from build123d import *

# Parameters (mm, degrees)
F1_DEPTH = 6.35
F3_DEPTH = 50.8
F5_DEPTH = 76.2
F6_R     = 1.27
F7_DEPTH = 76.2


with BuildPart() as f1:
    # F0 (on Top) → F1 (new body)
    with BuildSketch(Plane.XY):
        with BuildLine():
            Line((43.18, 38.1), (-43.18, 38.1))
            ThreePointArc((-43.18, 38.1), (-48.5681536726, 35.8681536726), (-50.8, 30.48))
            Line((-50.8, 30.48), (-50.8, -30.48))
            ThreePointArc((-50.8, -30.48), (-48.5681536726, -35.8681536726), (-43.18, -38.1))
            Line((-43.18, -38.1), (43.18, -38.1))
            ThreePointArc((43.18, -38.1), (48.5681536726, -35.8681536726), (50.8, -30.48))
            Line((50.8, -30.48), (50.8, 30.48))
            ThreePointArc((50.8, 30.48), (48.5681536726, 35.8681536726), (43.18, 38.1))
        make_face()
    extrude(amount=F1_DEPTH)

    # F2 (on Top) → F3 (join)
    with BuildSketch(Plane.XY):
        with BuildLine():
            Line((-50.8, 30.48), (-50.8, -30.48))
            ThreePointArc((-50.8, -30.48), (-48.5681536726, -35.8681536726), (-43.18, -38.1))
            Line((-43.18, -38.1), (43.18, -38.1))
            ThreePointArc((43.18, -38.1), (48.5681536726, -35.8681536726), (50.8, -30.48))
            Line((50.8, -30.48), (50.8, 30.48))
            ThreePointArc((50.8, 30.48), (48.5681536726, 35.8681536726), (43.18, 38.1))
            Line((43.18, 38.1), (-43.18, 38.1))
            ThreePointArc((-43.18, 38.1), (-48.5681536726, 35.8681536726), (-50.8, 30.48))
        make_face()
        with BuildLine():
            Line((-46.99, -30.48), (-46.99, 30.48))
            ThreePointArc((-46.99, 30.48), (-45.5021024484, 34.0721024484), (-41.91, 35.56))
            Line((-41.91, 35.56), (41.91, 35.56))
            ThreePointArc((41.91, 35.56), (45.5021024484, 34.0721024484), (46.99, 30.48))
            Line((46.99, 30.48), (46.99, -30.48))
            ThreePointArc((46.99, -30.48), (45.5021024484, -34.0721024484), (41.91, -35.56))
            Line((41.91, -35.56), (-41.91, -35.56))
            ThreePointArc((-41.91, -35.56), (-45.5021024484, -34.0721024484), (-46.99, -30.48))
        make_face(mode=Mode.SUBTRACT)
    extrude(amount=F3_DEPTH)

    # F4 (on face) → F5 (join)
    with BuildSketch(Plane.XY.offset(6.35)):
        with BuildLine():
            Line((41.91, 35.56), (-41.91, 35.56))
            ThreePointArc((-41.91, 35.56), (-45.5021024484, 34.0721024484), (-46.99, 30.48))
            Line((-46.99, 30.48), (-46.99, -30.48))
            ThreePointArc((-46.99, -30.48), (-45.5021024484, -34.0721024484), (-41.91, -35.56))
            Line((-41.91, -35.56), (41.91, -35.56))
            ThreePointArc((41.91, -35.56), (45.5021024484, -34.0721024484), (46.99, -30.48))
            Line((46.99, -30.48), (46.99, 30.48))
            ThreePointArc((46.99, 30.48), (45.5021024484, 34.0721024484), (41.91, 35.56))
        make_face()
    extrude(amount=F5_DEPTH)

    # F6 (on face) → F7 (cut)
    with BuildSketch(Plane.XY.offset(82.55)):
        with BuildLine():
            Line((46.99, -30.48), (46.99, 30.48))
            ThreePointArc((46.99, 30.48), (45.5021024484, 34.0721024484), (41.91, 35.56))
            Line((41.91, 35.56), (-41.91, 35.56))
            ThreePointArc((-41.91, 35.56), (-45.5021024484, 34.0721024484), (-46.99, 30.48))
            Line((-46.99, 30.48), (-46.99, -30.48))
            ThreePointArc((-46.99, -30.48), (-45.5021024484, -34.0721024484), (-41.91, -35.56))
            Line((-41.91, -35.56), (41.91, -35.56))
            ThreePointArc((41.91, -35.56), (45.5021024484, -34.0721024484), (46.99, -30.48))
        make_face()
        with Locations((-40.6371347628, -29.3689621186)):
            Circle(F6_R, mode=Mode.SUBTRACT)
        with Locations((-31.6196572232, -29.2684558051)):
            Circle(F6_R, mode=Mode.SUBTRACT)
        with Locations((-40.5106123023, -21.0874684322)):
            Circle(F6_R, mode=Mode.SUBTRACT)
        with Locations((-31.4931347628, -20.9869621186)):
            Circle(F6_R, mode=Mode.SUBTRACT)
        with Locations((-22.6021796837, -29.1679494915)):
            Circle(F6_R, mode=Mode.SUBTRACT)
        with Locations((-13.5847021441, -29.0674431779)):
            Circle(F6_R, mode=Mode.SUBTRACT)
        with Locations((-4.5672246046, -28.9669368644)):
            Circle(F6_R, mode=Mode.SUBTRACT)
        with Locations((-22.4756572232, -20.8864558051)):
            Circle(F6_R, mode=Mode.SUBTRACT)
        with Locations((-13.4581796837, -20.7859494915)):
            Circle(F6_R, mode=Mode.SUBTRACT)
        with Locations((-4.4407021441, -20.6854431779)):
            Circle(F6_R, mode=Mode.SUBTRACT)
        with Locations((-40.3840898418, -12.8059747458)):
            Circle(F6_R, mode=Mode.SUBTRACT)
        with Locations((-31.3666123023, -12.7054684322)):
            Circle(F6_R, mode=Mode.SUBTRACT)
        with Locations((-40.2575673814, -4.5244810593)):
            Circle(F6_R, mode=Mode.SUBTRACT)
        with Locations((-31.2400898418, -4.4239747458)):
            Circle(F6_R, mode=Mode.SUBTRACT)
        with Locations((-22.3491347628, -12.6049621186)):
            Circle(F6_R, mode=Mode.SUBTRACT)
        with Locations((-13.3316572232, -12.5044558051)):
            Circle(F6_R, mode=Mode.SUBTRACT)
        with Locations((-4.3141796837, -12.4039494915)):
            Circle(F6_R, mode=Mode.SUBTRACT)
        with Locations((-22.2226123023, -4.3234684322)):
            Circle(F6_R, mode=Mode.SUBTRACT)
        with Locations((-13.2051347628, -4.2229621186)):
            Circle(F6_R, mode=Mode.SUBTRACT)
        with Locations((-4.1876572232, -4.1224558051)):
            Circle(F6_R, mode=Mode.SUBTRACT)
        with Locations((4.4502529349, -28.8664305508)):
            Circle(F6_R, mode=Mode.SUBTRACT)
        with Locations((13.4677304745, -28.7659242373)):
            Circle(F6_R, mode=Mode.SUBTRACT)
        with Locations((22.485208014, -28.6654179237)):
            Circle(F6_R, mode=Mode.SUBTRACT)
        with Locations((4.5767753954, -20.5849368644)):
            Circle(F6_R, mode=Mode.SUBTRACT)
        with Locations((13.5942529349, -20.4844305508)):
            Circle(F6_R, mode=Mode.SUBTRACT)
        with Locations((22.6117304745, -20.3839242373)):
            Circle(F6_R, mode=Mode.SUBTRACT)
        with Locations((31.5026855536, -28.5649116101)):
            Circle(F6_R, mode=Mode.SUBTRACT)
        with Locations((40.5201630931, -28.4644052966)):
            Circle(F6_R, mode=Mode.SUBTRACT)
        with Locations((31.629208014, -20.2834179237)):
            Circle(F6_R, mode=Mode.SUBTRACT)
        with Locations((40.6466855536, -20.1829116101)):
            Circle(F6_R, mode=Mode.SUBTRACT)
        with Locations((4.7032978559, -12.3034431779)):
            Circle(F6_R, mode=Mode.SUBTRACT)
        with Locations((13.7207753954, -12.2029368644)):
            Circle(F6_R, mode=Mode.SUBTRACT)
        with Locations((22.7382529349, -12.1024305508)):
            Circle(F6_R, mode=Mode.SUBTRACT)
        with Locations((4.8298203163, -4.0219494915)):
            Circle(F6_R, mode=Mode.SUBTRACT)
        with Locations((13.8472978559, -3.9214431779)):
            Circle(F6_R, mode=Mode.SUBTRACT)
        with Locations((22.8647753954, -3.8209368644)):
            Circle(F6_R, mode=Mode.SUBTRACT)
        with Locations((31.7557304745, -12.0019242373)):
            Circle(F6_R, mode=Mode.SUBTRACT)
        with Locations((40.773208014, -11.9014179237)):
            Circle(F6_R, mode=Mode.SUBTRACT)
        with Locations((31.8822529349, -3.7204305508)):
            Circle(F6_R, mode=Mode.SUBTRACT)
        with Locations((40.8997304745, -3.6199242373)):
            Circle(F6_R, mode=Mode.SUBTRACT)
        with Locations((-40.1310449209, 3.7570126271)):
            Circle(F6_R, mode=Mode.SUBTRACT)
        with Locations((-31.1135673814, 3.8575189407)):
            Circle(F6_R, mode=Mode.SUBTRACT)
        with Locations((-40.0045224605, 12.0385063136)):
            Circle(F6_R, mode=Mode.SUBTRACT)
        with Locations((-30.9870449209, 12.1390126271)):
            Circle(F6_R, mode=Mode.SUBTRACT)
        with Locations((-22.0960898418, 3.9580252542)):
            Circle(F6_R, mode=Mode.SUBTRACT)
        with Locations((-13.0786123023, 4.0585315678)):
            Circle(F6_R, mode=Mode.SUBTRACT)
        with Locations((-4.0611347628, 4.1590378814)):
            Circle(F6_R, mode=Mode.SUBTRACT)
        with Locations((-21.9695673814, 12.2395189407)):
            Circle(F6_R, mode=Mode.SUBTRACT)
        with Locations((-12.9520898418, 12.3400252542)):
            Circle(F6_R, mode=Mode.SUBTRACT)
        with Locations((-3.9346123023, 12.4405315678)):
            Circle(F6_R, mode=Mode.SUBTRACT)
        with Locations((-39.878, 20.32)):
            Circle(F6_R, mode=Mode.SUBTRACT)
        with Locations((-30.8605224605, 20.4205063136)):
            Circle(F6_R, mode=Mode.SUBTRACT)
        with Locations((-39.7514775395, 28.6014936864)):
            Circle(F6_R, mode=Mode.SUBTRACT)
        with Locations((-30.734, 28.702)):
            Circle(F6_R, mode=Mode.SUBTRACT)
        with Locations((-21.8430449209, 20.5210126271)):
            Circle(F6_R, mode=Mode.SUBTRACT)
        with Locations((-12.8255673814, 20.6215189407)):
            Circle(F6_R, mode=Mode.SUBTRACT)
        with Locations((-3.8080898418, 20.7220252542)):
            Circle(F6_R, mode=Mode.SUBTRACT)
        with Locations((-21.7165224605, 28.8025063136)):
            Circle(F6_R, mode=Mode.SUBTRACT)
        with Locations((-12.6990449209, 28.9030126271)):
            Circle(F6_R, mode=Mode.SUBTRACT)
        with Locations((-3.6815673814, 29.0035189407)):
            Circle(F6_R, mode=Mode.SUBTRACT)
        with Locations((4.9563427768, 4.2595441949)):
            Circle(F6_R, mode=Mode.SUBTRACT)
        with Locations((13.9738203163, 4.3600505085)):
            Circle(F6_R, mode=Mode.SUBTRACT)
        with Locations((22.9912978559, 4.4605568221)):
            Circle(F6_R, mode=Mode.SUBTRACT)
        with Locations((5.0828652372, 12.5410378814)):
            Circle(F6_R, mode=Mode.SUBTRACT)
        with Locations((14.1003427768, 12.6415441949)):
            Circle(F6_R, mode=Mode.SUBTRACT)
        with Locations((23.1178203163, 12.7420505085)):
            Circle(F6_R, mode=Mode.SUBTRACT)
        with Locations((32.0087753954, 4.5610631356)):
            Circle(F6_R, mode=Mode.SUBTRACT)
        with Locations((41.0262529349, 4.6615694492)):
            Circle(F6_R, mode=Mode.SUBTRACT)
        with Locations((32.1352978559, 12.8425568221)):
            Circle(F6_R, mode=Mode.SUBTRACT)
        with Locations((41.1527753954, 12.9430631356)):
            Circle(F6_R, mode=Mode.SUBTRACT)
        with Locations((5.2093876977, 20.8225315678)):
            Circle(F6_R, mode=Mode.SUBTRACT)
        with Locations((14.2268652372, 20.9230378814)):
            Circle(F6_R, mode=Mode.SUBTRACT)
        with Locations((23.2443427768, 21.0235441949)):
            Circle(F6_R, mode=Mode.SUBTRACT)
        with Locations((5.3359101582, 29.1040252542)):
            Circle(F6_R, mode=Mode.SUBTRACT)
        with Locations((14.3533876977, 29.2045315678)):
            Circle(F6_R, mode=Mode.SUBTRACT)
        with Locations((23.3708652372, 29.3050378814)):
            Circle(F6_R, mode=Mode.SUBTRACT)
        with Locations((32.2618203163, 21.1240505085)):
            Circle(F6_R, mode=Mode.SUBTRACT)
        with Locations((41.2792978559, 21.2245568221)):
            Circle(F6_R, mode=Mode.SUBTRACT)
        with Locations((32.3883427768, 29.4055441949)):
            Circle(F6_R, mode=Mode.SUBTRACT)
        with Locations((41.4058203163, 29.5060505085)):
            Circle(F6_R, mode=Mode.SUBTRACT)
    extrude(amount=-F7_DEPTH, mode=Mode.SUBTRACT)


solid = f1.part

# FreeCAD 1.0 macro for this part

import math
import FreeCAD as App
import Part
import Sketcher
from FreeCAD import Vector
Q = App.Units.Quantity

doc = App.newDocument("Part")
params = doc.addObject("Spreadsheet::Sheet", "Params")
for row, (alias, value) in enumerate([
    ("sketch1_radius", "0.3 in"),
    ("sketch1_width", "3.4 in"),
    ("sketch1_height", "2.4 in"),
    ("pad1_length", "0.25 in"),
    ("sketch2_radius", "0.3 in"),
    ("sketch2_radius2", "0.2 in"),
    ("sketch2_width", "3.4 in"),
    ("sketch2_width2", "3.3 in"),
    ("sketch2_height", "2.4 in"),
    ("pad2_length", "2 in"),
    ("sketch3_radius", "0.2 in"),
    ("sketch3_width", "3.3 in"),
    ("sketch3_height", "2.4 in"),
    ("pad3_length", "3 in"),
    ("sketch4_diameter", "0.1 in"),
    ("sketch4_radius", "0.2 in"),
    ("sketch4_width", "3.3 in"),
    ("sketch4_height", "2.4 in"),
    ("pocket1_length", "3 in"),
], start=1):
    params.set(f"A{row}", alias)
    params.set(f"B{row}", "=" + value)
    params.setAlias(f"B{row}", alias)

body = doc.addObject("PartDesign::Body", "Body")

sketch1 = body.newObject("Sketcher::SketchObject", "Sketch")
sketch1.AttachmentSupport = (doc.getObject("XY_Plane"), [""])
sketch1.MapMode = "FlatFace"
sketch1.addGeometry([
    Part.LineSegment(Vector(43, 38, 0), Vector(-43, 38, 0)),
    Part.ArcOfCircle(Part.Circle(Vector(-43, 30, 0), Vector(0, 0, 1), 8), math.radians(90), math.radians(180)),
    Part.LineSegment(Vector(-51, 30, 0), Vector(-51, -30, 0)),
    Part.ArcOfCircle(Part.Circle(Vector(-43, -30, 0), Vector(0, 0, 1), 8), math.radians(180), math.radians(270)),
    Part.LineSegment(Vector(-43, -38, 0), Vector(43, -38, 0)),
    Part.ArcOfCircle(Part.Circle(Vector(43, -30, 0), Vector(0, 0, 1), 8), math.radians(-90), math.radians(0)),
    Part.LineSegment(Vector(51, -30, 0), Vector(51, 30, 0)),
    Part.ArcOfCircle(Part.Circle(Vector(43, 30, 0), Vector(0, 0, 1), 8), math.radians(0), math.radians(90)),
], False)
sketch1.addConstraint([
    Sketcher.Constraint("Tangent", 0, 2, 1, 1),
    Sketcher.Constraint("Tangent", 1, 2, 2, 1),
    Sketcher.Constraint("Tangent", 2, 2, 3, 1),
    Sketcher.Constraint("Tangent", 3, 2, 4, 1),
    Sketcher.Constraint("Tangent", 4, 2, 5, 1),
    Sketcher.Constraint("Tangent", 5, 2, 6, 1),
    Sketcher.Constraint("Tangent", 6, 2, 7, 1),
    Sketcher.Constraint("Tangent", 7, 2, 0, 1),
    Sketcher.Constraint("Horizontal", 0),
    Sketcher.Constraint("Vertical", 2),
    Sketcher.Constraint("Horizontal", 4),
    Sketcher.Constraint("Vertical", 6),
    Sketcher.Constraint("Equal", 1, 3),
    Sketcher.Constraint("Equal", 3, 5),
    Sketcher.Constraint("Equal", 5, 7),
    Sketcher.Constraint("Symmetric", 1, 3, 5, 3, -1, 1),
    Sketcher.Constraint("Radius", 1, Q("0.3 in")),
    Sketcher.Constraint("DistanceX", 0, 2, 0, 1, Q("3.4 in")),
    Sketcher.Constraint("DistanceY", 2, 2, 2, 1, Q("2.4 in")),
])
sketch1.setExpression("Constraints[16]", "Params.sketch1_radius")
sketch1.setExpression("Constraints[17]", "Params.sketch1_width")
sketch1.setExpression("Constraints[18]", "Params.sketch1_height")
pad1 = body.newObject("PartDesign::Pad", "Pad")
pad1.Profile = sketch1
pad1.setExpression("Length", "Params.pad1_length")

sketch2 = body.newObject("Sketcher::SketchObject", "Sketch001")
sketch2.AttachmentSupport = (doc.getObject("XY_Plane"), [""])
sketch2.MapMode = "FlatFace"
sketch2.addGeometry([
    Part.LineSegment(Vector(-51, 30, 0), Vector(-51, -30, 0)),
    Part.ArcOfCircle(Part.Circle(Vector(-43, -30, 0), Vector(0, 0, 1), 8), math.radians(180), math.radians(270)),
    Part.LineSegment(Vector(-43, -38, 0), Vector(43, -38, 0)),
    Part.ArcOfCircle(Part.Circle(Vector(43, -30, 0), Vector(0, 0, 1), 8), math.radians(-90), math.radians(0)),
    Part.LineSegment(Vector(51, -30, 0), Vector(51, 30, 0)),
    Part.ArcOfCircle(Part.Circle(Vector(43, 30, 0), Vector(0, 0, 1), 8), math.radians(0), math.radians(90)),
    Part.LineSegment(Vector(43, 38, 0), Vector(-43, 38, 0)),
    Part.ArcOfCircle(Part.Circle(Vector(-43, 30, 0), Vector(0, 0, 1), 8), math.radians(90), math.radians(180)),
    Part.ArcOfCircle(Part.Circle(Vector(-42, -30, 0), Vector(0, 0, 1), 5), math.radians(180), math.radians(270)),
    Part.LineSegment(Vector(-47, -30, 0), Vector(-47, 30, 0)),
    Part.ArcOfCircle(Part.Circle(Vector(-42, 30, 0), Vector(0, 0, 1), 5), math.radians(90), math.radians(180)),
    Part.LineSegment(Vector(-42, 36, 0), Vector(42, 36, 0)),
    Part.ArcOfCircle(Part.Circle(Vector(42, 30, 0), Vector(0, 0, 1), 5), math.radians(0), math.radians(90)),
    Part.LineSegment(Vector(47, 30, 0), Vector(47, -30, 0)),
    Part.ArcOfCircle(Part.Circle(Vector(42, -30, 0), Vector(0, 0, 1), 5), math.radians(-90), math.radians(0)),
    Part.LineSegment(Vector(42, -36, 0), Vector(-42, -36, 0)),
], False)
sketch2.addConstraint([
    Sketcher.Constraint("Tangent", 0, 2, 1, 1),
    Sketcher.Constraint("Tangent", 1, 2, 2, 1),
    Sketcher.Constraint("Tangent", 2, 2, 3, 1),
    Sketcher.Constraint("Tangent", 3, 2, 4, 1),
    Sketcher.Constraint("Tangent", 4, 2, 5, 1),
    Sketcher.Constraint("Tangent", 5, 2, 6, 1),
    Sketcher.Constraint("Tangent", 6, 2, 7, 1),
    Sketcher.Constraint("Tangent", 7, 2, 0, 1),
    Sketcher.Constraint("Tangent", 8, 1, 9, 1),
    Sketcher.Constraint("Tangent", 9, 2, 10, 2),
    Sketcher.Constraint("Tangent", 10, 1, 11, 1),
    Sketcher.Constraint("Tangent", 11, 2, 12, 2),
    Sketcher.Constraint("Tangent", 12, 1, 13, 1),
    Sketcher.Constraint("Tangent", 13, 2, 14, 2),
    Sketcher.Constraint("Tangent", 14, 1, 15, 1),
    Sketcher.Constraint("Tangent", 15, 2, 8, 2),
    Sketcher.Constraint("Vertical", 0),
    Sketcher.Constraint("Horizontal", 2),
    Sketcher.Constraint("Vertical", 4),
    Sketcher.Constraint("Horizontal", 6),
    Sketcher.Constraint("Vertical", 9),
    Sketcher.Constraint("Horizontal", 11),
    Sketcher.Constraint("Vertical", 13),
    Sketcher.Constraint("Horizontal", 15),
    Sketcher.Constraint("Equal", 1, 3),
    Sketcher.Constraint("Equal", 3, 5),
    Sketcher.Constraint("Equal", 5, 7),
    Sketcher.Constraint("Equal", 8, 10),
    Sketcher.Constraint("Equal", 10, 12),
    Sketcher.Constraint("Equal", 12, 14),
    Sketcher.Constraint("Symmetric", 1, 3, 5, 3, -1, 1),
    Sketcher.Constraint("Symmetric", 8, 3, 12, 3, -1, 1),
    Sketcher.Constraint("Horizontal", 3, 3, 8, 3),
    Sketcher.Constraint("Radius", 1, Q("0.3 in")),
    Sketcher.Constraint("Radius", 8, Q("0.2 in")),
    Sketcher.Constraint("DistanceX", 2, 1, 2, 2, Q("3.4 in")),
    Sketcher.Constraint("DistanceX", 11, 1, 11, 2, Q("3.3 in")),
    Sketcher.Constraint("DistanceY", 0, 2, 0, 1, Q("2.4 in")),
])
sketch2.setExpression("Constraints[33]", "Params.sketch2_radius")
sketch2.setExpression("Constraints[34]", "Params.sketch2_radius2")
sketch2.setExpression("Constraints[35]", "Params.sketch2_width")
sketch2.setExpression("Constraints[36]", "Params.sketch2_width2")
sketch2.setExpression("Constraints[37]", "Params.sketch2_height")
pad2 = body.newObject("PartDesign::Pad", "Pad001")
pad2.Profile = sketch2
pad2.setExpression("Length", "Params.pad2_length")

sketch3 = body.newObject("Sketcher::SketchObject", "Sketch002")
sketch3.AttachmentSupport = (doc.getObject("XY_Plane"), [""])
sketch3.MapMode = "FlatFace"
sketch3.AttachmentOffset = App.Placement(Vector(0, 0, 0.25 * 25.4), App.Rotation())
sketch3.addGeometry([
    Part.LineSegment(Vector(42, 36, 0), Vector(-42, 36, 0)),
    Part.ArcOfCircle(Part.Circle(Vector(-42, 30, 0), Vector(0, 0, 1), 5), math.radians(90), math.radians(180)),
    Part.LineSegment(Vector(-47, 30, 0), Vector(-47, -30, 0)),
    Part.ArcOfCircle(Part.Circle(Vector(-42, -30, 0), Vector(0, 0, 1), 5), math.radians(180), math.radians(270)),
    Part.LineSegment(Vector(-42, -36, 0), Vector(42, -36, 0)),
    Part.ArcOfCircle(Part.Circle(Vector(42, -30, 0), Vector(0, 0, 1), 5), math.radians(-90), math.radians(0)),
    Part.LineSegment(Vector(47, -30, 0), Vector(47, 30, 0)),
    Part.ArcOfCircle(Part.Circle(Vector(42, 30, 0), Vector(0, 0, 1), 5), math.radians(0), math.radians(90)),
], False)
sketch3.addConstraint([
    Sketcher.Constraint("Tangent", 0, 2, 1, 1),
    Sketcher.Constraint("Tangent", 1, 2, 2, 1),
    Sketcher.Constraint("Tangent", 2, 2, 3, 1),
    Sketcher.Constraint("Tangent", 3, 2, 4, 1),
    Sketcher.Constraint("Tangent", 4, 2, 5, 1),
    Sketcher.Constraint("Tangent", 5, 2, 6, 1),
    Sketcher.Constraint("Tangent", 6, 2, 7, 1),
    Sketcher.Constraint("Tangent", 7, 2, 0, 1),
    Sketcher.Constraint("Horizontal", 0),
    Sketcher.Constraint("Vertical", 2),
    Sketcher.Constraint("Horizontal", 4),
    Sketcher.Constraint("Vertical", 6),
    Sketcher.Constraint("Equal", 1, 3),
    Sketcher.Constraint("Equal", 3, 5),
    Sketcher.Constraint("Equal", 5, 7),
    Sketcher.Constraint("Symmetric", 1, 3, 5, 3, -1, 1),
    Sketcher.Constraint("Radius", 1, Q("0.2 in")),
    Sketcher.Constraint("DistanceX", 0, 2, 0, 1, Q("3.3 in")),
    Sketcher.Constraint("DistanceY", 2, 2, 2, 1, Q("2.4 in")),
])
sketch3.setExpression("Constraints[16]", "Params.sketch3_radius")
sketch3.setExpression("Constraints[17]", "Params.sketch3_width")
sketch3.setExpression("Constraints[18]", "Params.sketch3_height")
pad3 = body.newObject("PartDesign::Pad", "Pad002")
pad3.Profile = sketch3
pad3.setExpression("Length", "Params.pad3_length")

sketch4 = body.newObject("Sketcher::SketchObject", "Sketch003")
sketch4.AttachmentSupport = (doc.getObject("XY_Plane"), [""])
sketch4.MapMode = "FlatFace"
sketch4.AttachmentOffset = App.Placement(Vector(0, 0, 3.25 * 25.4), App.Rotation())
sketch4.addGeometry([
    Part.LineSegment(Vector(47, -30.5, 0), Vector(47, 30.5, 0)),
    Part.ArcOfCircle(Part.Circle(Vector(41.9, 30.5, 0), Vector(0, 0, 1), 5.1), math.radians(0), math.radians(90)),
    Part.LineSegment(Vector(41.9, 35.6, 0), Vector(-41.9, 35.6, 0)),
    Part.ArcOfCircle(Part.Circle(Vector(-41.9, 30.5, 0), Vector(0, 0, 1), 5.1), math.radians(90), math.radians(180)),
    Part.LineSegment(Vector(-47, 30.5, 0), Vector(-47, -30.5, 0)),
    Part.ArcOfCircle(Part.Circle(Vector(-41.9, -30.5, 0), Vector(0, 0, 1), 5.1), math.radians(180), math.radians(270)),
    Part.LineSegment(Vector(-41.9, -35.6, 0), Vector(41.9, -35.6, 0)),
    Part.ArcOfCircle(Part.Circle(Vector(41.9, -30.5, 0), Vector(0, 0, 1), 5.1), math.radians(-90), math.radians(0)),
    Part.Circle(Vector(-40.6, -29.4, 0), Vector(0, 0, 1), 1.3),
    Part.Circle(Vector(-31.6, -29.3, 0), Vector(0, 0, 1), 1.3),
    Part.Circle(Vector(-22.6, -29.2, 0), Vector(0, 0, 1), 1.3),
    Part.Circle(Vector(-40.5, -21.1, 0), Vector(0, 0, 1), 1.3),
    Part.Circle(Vector(-31.5, -21, 0), Vector(0, 0, 1), 1.3),
    Part.Circle(Vector(-22.5, -20.9, 0), Vector(0, 0, 1), 1.3),
    Part.Circle(Vector(-13.6, -29.1, 0), Vector(0, 0, 1), 1.3),
    Part.Circle(Vector(-4.6, -29, 0), Vector(0, 0, 1), 1.3),
    Part.Circle(Vector(-13.5, -20.8, 0), Vector(0, 0, 1), 1.3),
    Part.Circle(Vector(-4.4, -20.7, 0), Vector(0, 0, 1), 1.3),
    Part.Circle(Vector(-40.4, -12.8, 0), Vector(0, 0, 1), 1.3),
    Part.Circle(Vector(-31.4, -12.7, 0), Vector(0, 0, 1), 1.3),
    Part.Circle(Vector(-22.3, -12.6, 0), Vector(0, 0, 1), 1.3),
    Part.Circle(Vector(-40.3, -4.5, 0), Vector(0, 0, 1), 1.3),
    Part.Circle(Vector(-31.2, -4.4, 0), Vector(0, 0, 1), 1.3),
    Part.Circle(Vector(-22.2, -4.3, 0), Vector(0, 0, 1), 1.3),
    Part.Circle(Vector(-13.3, -12.5, 0), Vector(0, 0, 1), 1.3),
    Part.Circle(Vector(-4.3, -12.4, 0), Vector(0, 0, 1), 1.3),
    Part.Circle(Vector(-13.2, -4.2, 0), Vector(0, 0, 1), 1.3),
    Part.Circle(Vector(-4.2, -4.1, 0), Vector(0, 0, 1), 1.3),
    Part.Circle(Vector(4.5, -28.9, 0), Vector(0, 0, 1), 1.3),
    Part.Circle(Vector(13.5, -28.8, 0), Vector(0, 0, 1), 1.3),
    Part.Circle(Vector(4.6, -20.6, 0), Vector(0, 0, 1), 1.3),
    Part.Circle(Vector(13.6, -20.5, 0), Vector(0, 0, 1), 1.3),
    Part.Circle(Vector(22.5, -28.7, 0), Vector(0, 0, 1), 1.3),
    Part.Circle(Vector(31.5, -28.6, 0), Vector(0, 0, 1), 1.3),
    Part.Circle(Vector(40.5, -28.5, 0), Vector(0, 0, 1), 1.3),
    Part.Circle(Vector(22.6, -20.4, 0), Vector(0, 0, 1), 1.3),
    Part.Circle(Vector(31.6, -20.3, 0), Vector(0, 0, 1), 1.3),
    Part.Circle(Vector(40.6, -20.2, 0), Vector(0, 0, 1), 1.3),
    Part.Circle(Vector(4.7, -12.3, 0), Vector(0, 0, 1), 1.3),
    Part.Circle(Vector(13.7, -12.2, 0), Vector(0, 0, 1), 1.3),
    Part.Circle(Vector(4.8, -4, 0), Vector(0, 0, 1), 1.3),
    Part.Circle(Vector(13.8, -3.9, 0), Vector(0, 0, 1), 1.3),
    Part.Circle(Vector(22.7, -12.1, 0), Vector(0, 0, 1), 1.3),
    Part.Circle(Vector(31.8, -12, 0), Vector(0, 0, 1), 1.3),
    Part.Circle(Vector(40.8, -11.9, 0), Vector(0, 0, 1), 1.3),
    Part.Circle(Vector(22.9, -3.8, 0), Vector(0, 0, 1), 1.3),
    Part.Circle(Vector(31.9, -3.7, 0), Vector(0, 0, 1), 1.3),
    Part.Circle(Vector(40.9, -3.6, 0), Vector(0, 0, 1), 1.3),
    Part.Circle(Vector(-40.1, 3.8, 0), Vector(0, 0, 1), 1.3),
    Part.Circle(Vector(-31.1, 3.9, 0), Vector(0, 0, 1), 1.3),
    Part.Circle(Vector(-22.1, 4, 0), Vector(0, 0, 1), 1.3),
    Part.Circle(Vector(-40, 12, 0), Vector(0, 0, 1), 1.3),
    Part.Circle(Vector(-31, 12.1, 0), Vector(0, 0, 1), 1.3),
    Part.Circle(Vector(-22, 12.2, 0), Vector(0, 0, 1), 1.3),
    Part.Circle(Vector(-13.1, 4.1, 0), Vector(0, 0, 1), 1.3),
    Part.Circle(Vector(-4.1, 4.2, 0), Vector(0, 0, 1), 1.3),
    Part.Circle(Vector(-13, 12.3, 0), Vector(0, 0, 1), 1.3),
    Part.Circle(Vector(-3.9, 12.4, 0), Vector(0, 0, 1), 1.3),
    Part.Circle(Vector(-39.9, 20.3, 0), Vector(0, 0, 1), 1.3),
    Part.Circle(Vector(-30.9, 20.4, 0), Vector(0, 0, 1), 1.3),
    Part.Circle(Vector(-21.8, 20.5, 0), Vector(0, 0, 1), 1.3),
    Part.Circle(Vector(-39.8, 28.6, 0), Vector(0, 0, 1), 1.3),
    Part.Circle(Vector(-30.7, 28.7, 0), Vector(0, 0, 1), 1.3),
    Part.Circle(Vector(-21.7, 28.8, 0), Vector(0, 0, 1), 1.3),
    Part.Circle(Vector(-12.8, 20.6, 0), Vector(0, 0, 1), 1.3),
    Part.Circle(Vector(-3.8, 20.7, 0), Vector(0, 0, 1), 1.3),
    Part.Circle(Vector(-12.7, 28.9, 0), Vector(0, 0, 1), 1.3),
    Part.Circle(Vector(-3.7, 29, 0), Vector(0, 0, 1), 1.3),
    Part.Circle(Vector(5, 4.3, 0), Vector(0, 0, 1), 1.3),
    Part.Circle(Vector(14, 4.4, 0), Vector(0, 0, 1), 1.3),
    Part.Circle(Vector(5.1, 12.5, 0), Vector(0, 0, 1), 1.3),
    Part.Circle(Vector(14.1, 12.6, 0), Vector(0, 0, 1), 1.3),
    Part.Circle(Vector(23, 4.5, 0), Vector(0, 0, 1), 1.3),
    Part.Circle(Vector(32, 4.6, 0), Vector(0, 0, 1), 1.3),
    Part.Circle(Vector(41, 4.7, 0), Vector(0, 0, 1), 1.3),
    Part.Circle(Vector(23.1, 12.7, 0), Vector(0, 0, 1), 1.3),
    Part.Circle(Vector(32.1, 12.8, 0), Vector(0, 0, 1), 1.3),
    Part.Circle(Vector(41.2, 12.9, 0), Vector(0, 0, 1), 1.3),
    Part.Circle(Vector(5.2, 20.8, 0), Vector(0, 0, 1), 1.3),
    Part.Circle(Vector(14.2, 20.9, 0), Vector(0, 0, 1), 1.3),
    Part.Circle(Vector(5.3, 29.1, 0), Vector(0, 0, 1), 1.3),
    Part.Circle(Vector(14.4, 29.2, 0), Vector(0, 0, 1), 1.3),
    Part.Circle(Vector(23.2, 21, 0), Vector(0, 0, 1), 1.3),
    Part.Circle(Vector(32.3, 21.1, 0), Vector(0, 0, 1), 1.3),
    Part.Circle(Vector(41.3, 21.2, 0), Vector(0, 0, 1), 1.3),
    Part.Circle(Vector(23.4, 29.3, 0), Vector(0, 0, 1), 1.3),
    Part.Circle(Vector(32.4, 29.4, 0), Vector(0, 0, 1), 1.3),
    Part.Circle(Vector(41.4, 29.5, 0), Vector(0, 0, 1), 1.3),
], False)
sketch4.addConstraint([
    Sketcher.Constraint("Tangent", 0, 2, 1, 1),
    Sketcher.Constraint("Tangent", 1, 2, 2, 1),
    Sketcher.Constraint("Tangent", 2, 2, 3, 1),
    Sketcher.Constraint("Tangent", 3, 2, 4, 1),
    Sketcher.Constraint("Tangent", 4, 2, 5, 1),
    Sketcher.Constraint("Tangent", 5, 2, 6, 1),
    Sketcher.Constraint("Tangent", 6, 2, 7, 1),
    Sketcher.Constraint("Tangent", 7, 2, 0, 1),
    Sketcher.Constraint("Vertical", 0),
    Sketcher.Constraint("Horizontal", 2),
    Sketcher.Constraint("Vertical", 4),
    Sketcher.Constraint("Horizontal", 6),
    Sketcher.Constraint("Equal", 1, 3),
    Sketcher.Constraint("Equal", 3, 5),
    Sketcher.Constraint("Equal", 5, 7),
    Sketcher.Constraint("Equal", 8, 9),
    Sketcher.Constraint("Equal", 9, 10),
    Sketcher.Constraint("Equal", 10, 11),
    Sketcher.Constraint("Equal", 11, 12),
    Sketcher.Constraint("Equal", 12, 13),
    Sketcher.Constraint("Equal", 13, 14),
    Sketcher.Constraint("Equal", 14, 15),
    Sketcher.Constraint("Equal", 15, 16),
    Sketcher.Constraint("Equal", 16, 17),
    Sketcher.Constraint("Equal", 17, 18),
    Sketcher.Constraint("Equal", 18, 19),
    Sketcher.Constraint("Equal", 19, 20),
    Sketcher.Constraint("Equal", 20, 21),
    Sketcher.Constraint("Equal", 21, 22),
    Sketcher.Constraint("Equal", 22, 23),
    Sketcher.Constraint("Equal", 23, 24),
    Sketcher.Constraint("Equal", 24, 25),
    Sketcher.Constraint("Equal", 25, 26),
    Sketcher.Constraint("Equal", 26, 27),
    Sketcher.Constraint("Equal", 27, 28),
    Sketcher.Constraint("Equal", 28, 29),
    Sketcher.Constraint("Equal", 29, 30),
    Sketcher.Constraint("Equal", 30, 31),
    Sketcher.Constraint("Equal", 31, 32),
    Sketcher.Constraint("Equal", 32, 33),
    Sketcher.Constraint("Equal", 33, 34),
    Sketcher.Constraint("Equal", 34, 35),
    Sketcher.Constraint("Equal", 35, 36),
    Sketcher.Constraint("Equal", 36, 37),
    Sketcher.Constraint("Equal", 37, 38),
    Sketcher.Constraint("Equal", 38, 39),
    Sketcher.Constraint("Equal", 39, 40),
    Sketcher.Constraint("Equal", 40, 41),
    Sketcher.Constraint("Equal", 41, 42),
    Sketcher.Constraint("Equal", 42, 43),
    Sketcher.Constraint("Equal", 43, 44),
    Sketcher.Constraint("Equal", 44, 45),
    Sketcher.Constraint("Equal", 45, 46),
    Sketcher.Constraint("Equal", 46, 47),
    Sketcher.Constraint("Equal", 47, 48),
    Sketcher.Constraint("Equal", 48, 49),
    Sketcher.Constraint("Equal", 49, 50),
    Sketcher.Constraint("Equal", 50, 51),
    Sketcher.Constraint("Equal", 51, 52),
    Sketcher.Constraint("Equal", 52, 53),
    Sketcher.Constraint("Equal", 53, 54),
    Sketcher.Constraint("Equal", 54, 55),
    Sketcher.Constraint("Equal", 55, 56),
    Sketcher.Constraint("Equal", 56, 57),
    Sketcher.Constraint("Equal", 57, 58),
    Sketcher.Constraint("Equal", 58, 59),
    Sketcher.Constraint("Equal", 59, 60),
    Sketcher.Constraint("Equal", 60, 61),
    Sketcher.Constraint("Equal", 61, 62),
    Sketcher.Constraint("Equal", 62, 63),
    Sketcher.Constraint("Equal", 63, 64),
    Sketcher.Constraint("Equal", 64, 65),
    Sketcher.Constraint("Equal", 65, 66),
    Sketcher.Constraint("Equal", 66, 67),
    Sketcher.Constraint("Equal", 67, 68),
    Sketcher.Constraint("Equal", 68, 69),
    Sketcher.Constraint("Equal", 69, 70),
    Sketcher.Constraint("Equal", 70, 71),
    Sketcher.Constraint("Equal", 71, 72),
    Sketcher.Constraint("Equal", 72, 73),
    Sketcher.Constraint("Equal", 73, 74),
    Sketcher.Constraint("Equal", 74, 75),
    Sketcher.Constraint("Equal", 75, 76),
    Sketcher.Constraint("Equal", 76, 77),
    Sketcher.Constraint("Equal", 77, 78),
    Sketcher.Constraint("Equal", 78, 79),
    Sketcher.Constraint("Equal", 79, 80),
    Sketcher.Constraint("Equal", 80, 81),
    Sketcher.Constraint("Equal", 81, 82),
    Sketcher.Constraint("Equal", 82, 83),
    Sketcher.Constraint("Equal", 83, 84),
    Sketcher.Constraint("Equal", 84, 85),
    Sketcher.Constraint("Equal", 85, 86),
    Sketcher.Constraint("Equal", 86, 87),
    Sketcher.Constraint("Symmetric", 1, 3, 5, 3, -1, 1),
    Sketcher.Constraint("Diameter", 8, Q("0.1 in")),
    Sketcher.Constraint("Radius", 1, Q("0.2 in")),
    Sketcher.Constraint("DistanceX", 2, 2, 2, 1, Q("3.3 in")),
    Sketcher.Constraint("DistanceY", 0, 1, 0, 2, Q("2.4 in")),
    Sketcher.Constraint("DistanceY", -1, 1, 58, 3, Q("0.8 in")),
    Sketcher.Constraint("DistanceX", 58, 3, -1, 1, Q("1.57 in")),
    Sketcher.Constraint("DistanceX", 62, 3, -1, 1, Q("1.21 in")),
    Sketcher.Constraint("DistanceY", -1, 1, 62, 3, Q("1.13 in")),
    Sketcher.Constraint("DistanceX", 10, 3, -1, 1, 22.60218),
    Sketcher.Constraint("DistanceY", 10, 3, -1, 1, 29.167949),
    Sketcher.Constraint("DistanceY", 11, 3, -1, 1, 21.087468),
    Sketcher.Constraint("DistanceX", 16, 3, -1, 1, 13.45818),
    Sketcher.Constraint("DistanceY", 16, 3, -1, 1, 20.785949),
    Sketcher.Constraint("DistanceX", 18, 3, -1, 1, 40.38409),
    Sketcher.Constraint("DistanceY", 19, 3, -1, 1, 12.705468),
    Sketcher.Constraint("DistanceY", 21, 3, -1, 1, 4.524481),
    Sketcher.Constraint("DistanceX", 22, 3, -1, 1, 31.24009),
    Sketcher.Constraint("DistanceY", 23, 3, -1, 1, 4.323468),
    Sketcher.Constraint("DistanceX", 25, 3, -1, 1, 4.31418),
    Sketcher.Constraint("DistanceY", 25, 3, -1, 1, 12.403949),
    Sketcher.Constraint("DistanceY", 28, 3, -1, 1, 28.866431),
    Sketcher.Constraint("DistanceX", -1, 1, 29, 3, 13.46773),
    Sketcher.Constraint("DistanceY", 31, 3, -1, 1, 20.484431),
    Sketcher.Constraint("DistanceX", -1, 1, 32, 3, 22.485208),
    Sketcher.Constraint("DistanceY", 33, 3, -1, 1, 28.564912),
    Sketcher.Constraint("DistanceX", -1, 1, 35, 3, 22.61173),
    Sketcher.Constraint("DistanceX", -1, 1, 36, 3, 31.629208),
    Sketcher.Constraint("DistanceY", 37, 3, -1, 1, 20.182912),
    Sketcher.Constraint("DistanceX", -1, 1, 40, 3, 4.82982),
    Sketcher.Constraint("DistanceY", 40, 3, -1, 1, 4.021949),
    Sketcher.Constraint("DistanceY", 42, 3, -1, 1, 12.102431),
    Sketcher.Constraint("DistanceX", -1, 1, 43, 3, 31.75573),
    Sketcher.Constraint("DistanceX", -1, 1, 44, 3, 40.773208),
    Sketcher.Constraint("DistanceY", 46, 3, -1, 1, 3.720431),
    Sketcher.Constraint("DistanceX", -1, 1, 47, 3, 40.89973),
    Sketcher.Constraint("DistanceY", -1, 1, 49, 3, 3.857519),
    Sketcher.Constraint("DistanceX", 50, 3, -1, 1, 22.09609),
    Sketcher.Constraint("DistanceY", -1, 1, 53, 3, 12.239519),
    Sketcher.Constraint("DistanceY", -1, 1, 54, 3, 4.058532),
    Sketcher.Constraint("DistanceX", 56, 3, -1, 1, 12.95209),
    Sketcher.Constraint("DistanceY", -1, 1, 57, 3, 12.440532),
    Sketcher.Constraint("DistanceY", -1, 1, 64, 3, 20.621519),
    Sketcher.Constraint("DistanceX", 65, 3, -1, 1, 3.80809),
    Sketcher.Constraint("DistanceY", -1, 1, 67, 3, 29.003519),
    Sketcher.Constraint("DistanceX", -1, 1, 69, 3, 13.97382),
    Sketcher.Constraint("DistanceY", -1, 1, 69, 3, 4.360051),
    Sketcher.Constraint("DistanceY", -1, 1, 74, 3, 4.661569),
    Sketcher.Constraint("DistanceX", -1, 1, 75, 3, 23.11782),
    Sketcher.Constraint("DistanceY", -1, 1, 75, 3, 12.742051),
    Sketcher.Constraint("DistanceY", -1, 1, 78, 3, 20.822532),
    Sketcher.Constraint("DistanceX", -1, 1, 80, 3, 5.33591),
    Sketcher.Constraint("DistanceY", -1, 1, 81, 3, 29.204532),
    Sketcher.Constraint("DistanceX", -1, 1, 83, 3, 32.26182),
    Sketcher.Constraint("DistanceY", -1, 1, 83, 3, 21.124051),
    Sketcher.Constraint("DistanceX", -1, 1, 87, 3, 41.40582),
    Sketcher.Constraint("DistanceY", -1, 1, 87, 3, 29.506051),
    Sketcher.Constraint("DistanceX", 8, 3, -1, 1, 40.637135),
    Sketcher.Constraint("DistanceY", 8, 3, -1, 1, 29.368962),
    Sketcher.Constraint("DistanceX", 9, 3, -1, 1, 31.619657),
    Sketcher.Constraint("DistanceY", 9, 3, -1, 1, 29.268456),
    Sketcher.Constraint("DistanceX", 11, 3, -1, 1, 40.510612),
    Sketcher.Constraint("DistanceX", 12, 3, -1, 1, 31.493135),
    Sketcher.Constraint("DistanceY", 12, 3, -1, 1, 20.986962),
    Sketcher.Constraint("DistanceX", 13, 3, -1, 1, 22.475657),
    Sketcher.Constraint("DistanceY", 13, 3, -1, 1, 20.886456),
    Sketcher.Constraint("DistanceX", 14, 3, -1, 1, 13.584702),
    Sketcher.Constraint("DistanceY", 14, 3, -1, 1, 29.067443),
    Sketcher.Constraint("DistanceX", 15, 3, -1, 1, 4.567225),
    Sketcher.Constraint("DistanceY", 15, 3, -1, 1, 28.966937),
    Sketcher.Constraint("DistanceX", 17, 3, -1, 1, 4.440702),
    Sketcher.Constraint("DistanceY", 17, 3, -1, 1, 20.685443),
    Sketcher.Constraint("DistanceY", 18, 3, -1, 1, 12.805975),
    Sketcher.Constraint("DistanceX", 19, 3, -1, 1, 31.366612),
    Sketcher.Constraint("DistanceX", 20, 3, -1, 1, 22.349135),
    Sketcher.Constraint("DistanceY", 20, 3, -1, 1, 12.604962),
    Sketcher.Constraint("DistanceX", 21, 3, -1, 1, 40.257567),
    Sketcher.Constraint("DistanceY", 22, 3, -1, 1, 4.423975),
    Sketcher.Constraint("DistanceX", 23, 3, -1, 1, 22.222612),
    Sketcher.Constraint("DistanceX", 24, 3, -1, 1, 13.331657),
    Sketcher.Constraint("DistanceY", 24, 3, -1, 1, 12.504456),
    Sketcher.Constraint("DistanceX", 26, 3, -1, 1, 13.205135),
    Sketcher.Constraint("DistanceY", 26, 3, -1, 1, 4.222962),
    Sketcher.Constraint("DistanceX", 27, 3, -1, 1, 4.187657),
    Sketcher.Constraint("DistanceY", 27, 3, -1, 1, 4.122456),
    Sketcher.Constraint("DistanceX", -1, 1, 28, 3, 4.450253),
    Sketcher.Constraint("DistanceY", 29, 3, -1, 1, 28.765924),
    Sketcher.Constraint("DistanceX", -1, 1, 30, 3, 4.576775),
    Sketcher.Constraint("DistanceY", 30, 3, -1, 1, 20.584937),
    Sketcher.Constraint("DistanceX", -1, 1, 31, 3, 13.594253),
    Sketcher.Constraint("DistanceY", 32, 3, -1, 1, 28.665418),
    Sketcher.Constraint("DistanceX", -1, 1, 33, 3, 31.502686),
    Sketcher.Constraint("DistanceX", -1, 1, 34, 3, 40.520163),
    Sketcher.Constraint("DistanceY", 34, 3, -1, 1, 28.464405),
    Sketcher.Constraint("DistanceY", 35, 3, -1, 1, 20.383924),
    Sketcher.Constraint("DistanceY", 36, 3, -1, 1, 20.283418),
    Sketcher.Constraint("DistanceX", -1, 1, 37, 3, 40.646686),
    Sketcher.Constraint("DistanceX", -1, 1, 38, 3, 4.703298),
    Sketcher.Constraint("DistanceY", 38, 3, -1, 1, 12.303443),
    Sketcher.Constraint("DistanceX", -1, 1, 39, 3, 13.720775),
    Sketcher.Constraint("DistanceY", 39, 3, -1, 1, 12.202937),
    Sketcher.Constraint("DistanceX", -1, 1, 41, 3, 13.847298),
    Sketcher.Constraint("DistanceY", 41, 3, -1, 1, 3.921443),
    Sketcher.Constraint("DistanceX", -1, 1, 42, 3, 22.738253),
    Sketcher.Constraint("DistanceY", 43, 3, -1, 1, 12.001924),
    Sketcher.Constraint("DistanceY", 44, 3, -1, 1, 11.901418),
    Sketcher.Constraint("DistanceX", -1, 1, 45, 3, 22.864775),
    Sketcher.Constraint("DistanceY", 45, 3, -1, 1, 3.820937),
    Sketcher.Constraint("DistanceX", -1, 1, 46, 3, 31.882253),
    Sketcher.Constraint("DistanceY", 47, 3, -1, 1, 3.619924),
    Sketcher.Constraint("DistanceX", 48, 3, -1, 1, 40.131045),
    Sketcher.Constraint("DistanceY", -1, 1, 48, 3, 3.757013),
    Sketcher.Constraint("DistanceX", 49, 3, -1, 1, 31.113567),
    Sketcher.Constraint("DistanceY", -1, 1, 50, 3, 3.958025),
    Sketcher.Constraint("DistanceX", 51, 3, -1, 1, 40.004522),
    Sketcher.Constraint("DistanceY", -1, 1, 51, 3, 12.038506),
    Sketcher.Constraint("DistanceX", 52, 3, -1, 1, 30.987045),
    Sketcher.Constraint("DistanceY", -1, 1, 52, 3, 12.139013),
    Sketcher.Constraint("DistanceX", 53, 3, -1, 1, 21.969567),
    Sketcher.Constraint("DistanceX", 54, 3, -1, 1, 13.078612),
    Sketcher.Constraint("DistanceX", 55, 3, -1, 1, 4.061135),
    Sketcher.Constraint("DistanceY", -1, 1, 55, 3, 4.159038),
    Sketcher.Constraint("DistanceY", -1, 1, 56, 3, 12.340025),
    Sketcher.Constraint("DistanceX", 57, 3, -1, 1, 3.934612),
    Sketcher.Constraint("DistanceX", 59, 3, -1, 1, 30.860522),
    Sketcher.Constraint("DistanceY", -1, 1, 59, 3, 20.420506),
    Sketcher.Constraint("DistanceX", 60, 3, -1, 1, 21.843045),
    Sketcher.Constraint("DistanceY", -1, 1, 60, 3, 20.521013),
    Sketcher.Constraint("DistanceX", 61, 3, -1, 1, 39.751478),
    Sketcher.Constraint("DistanceY", -1, 1, 61, 3, 28.601494),
    Sketcher.Constraint("DistanceX", 63, 3, -1, 1, 21.716522),
    Sketcher.Constraint("DistanceY", -1, 1, 63, 3, 28.802506),
    Sketcher.Constraint("DistanceX", 64, 3, -1, 1, 12.825567),
    Sketcher.Constraint("DistanceY", -1, 1, 65, 3, 20.722025),
    Sketcher.Constraint("DistanceX", 66, 3, -1, 1, 12.699045),
    Sketcher.Constraint("DistanceY", -1, 1, 66, 3, 28.903013),
    Sketcher.Constraint("DistanceX", 67, 3, -1, 1, 3.681567),
    Sketcher.Constraint("DistanceX", -1, 1, 68, 3, 4.956343),
    Sketcher.Constraint("DistanceY", -1, 1, 68, 3, 4.259544),
    Sketcher.Constraint("DistanceX", -1, 1, 70, 3, 5.082865),
    Sketcher.Constraint("DistanceY", -1, 1, 70, 3, 12.541038),
    Sketcher.Constraint("DistanceX", -1, 1, 71, 3, 14.100343),
    Sketcher.Constraint("DistanceY", -1, 1, 71, 3, 12.641544),
    Sketcher.Constraint("DistanceX", -1, 1, 72, 3, 22.991298),
    Sketcher.Constraint("DistanceY", -1, 1, 72, 3, 4.460557),
    Sketcher.Constraint("DistanceX", -1, 1, 73, 3, 32.008775),
    Sketcher.Constraint("DistanceY", -1, 1, 73, 3, 4.561063),
    Sketcher.Constraint("DistanceX", -1, 1, 74, 3, 41.026253),
    Sketcher.Constraint("DistanceX", -1, 1, 76, 3, 32.135298),
    Sketcher.Constraint("DistanceY", -1, 1, 76, 3, 12.842557),
    Sketcher.Constraint("DistanceX", -1, 1, 77, 3, 41.152775),
    Sketcher.Constraint("DistanceY", -1, 1, 77, 3, 12.943063),
    Sketcher.Constraint("DistanceX", -1, 1, 78, 3, 5.209388),
    Sketcher.Constraint("DistanceX", -1, 1, 79, 3, 14.226865),
    Sketcher.Constraint("DistanceY", -1, 1, 79, 3, 20.923038),
    Sketcher.Constraint("DistanceY", -1, 1, 80, 3, 29.104025),
    Sketcher.Constraint("DistanceX", -1, 1, 81, 3, 14.353388),
    Sketcher.Constraint("DistanceX", -1, 1, 82, 3, 23.244343),
    Sketcher.Constraint("DistanceY", -1, 1, 82, 3, 21.023544),
    Sketcher.Constraint("DistanceX", -1, 1, 84, 3, 41.279298),
    Sketcher.Constraint("DistanceY", -1, 1, 84, 3, 21.224557),
    Sketcher.Constraint("DistanceX", -1, 1, 85, 3, 23.370865),
    Sketcher.Constraint("DistanceY", -1, 1, 85, 3, 29.305038),
    Sketcher.Constraint("DistanceX", -1, 1, 86, 3, 32.388343),
    Sketcher.Constraint("DistanceY", -1, 1, 86, 3, 29.405544),
])
sketch4.setExpression("Constraints[95]", "Params.sketch4_diameter")
sketch4.setExpression("Constraints[96]", "Params.sketch4_radius")
sketch4.setExpression("Constraints[97]", "Params.sketch4_width")
sketch4.setExpression("Constraints[98]", "Params.sketch4_height")
pocket1 = body.newObject("PartDesign::Pocket", "Pocket")
pocket1.Profile = sketch4
pocket1.setExpression("Length", "Params.pocket1_length")

doc.recompute()
